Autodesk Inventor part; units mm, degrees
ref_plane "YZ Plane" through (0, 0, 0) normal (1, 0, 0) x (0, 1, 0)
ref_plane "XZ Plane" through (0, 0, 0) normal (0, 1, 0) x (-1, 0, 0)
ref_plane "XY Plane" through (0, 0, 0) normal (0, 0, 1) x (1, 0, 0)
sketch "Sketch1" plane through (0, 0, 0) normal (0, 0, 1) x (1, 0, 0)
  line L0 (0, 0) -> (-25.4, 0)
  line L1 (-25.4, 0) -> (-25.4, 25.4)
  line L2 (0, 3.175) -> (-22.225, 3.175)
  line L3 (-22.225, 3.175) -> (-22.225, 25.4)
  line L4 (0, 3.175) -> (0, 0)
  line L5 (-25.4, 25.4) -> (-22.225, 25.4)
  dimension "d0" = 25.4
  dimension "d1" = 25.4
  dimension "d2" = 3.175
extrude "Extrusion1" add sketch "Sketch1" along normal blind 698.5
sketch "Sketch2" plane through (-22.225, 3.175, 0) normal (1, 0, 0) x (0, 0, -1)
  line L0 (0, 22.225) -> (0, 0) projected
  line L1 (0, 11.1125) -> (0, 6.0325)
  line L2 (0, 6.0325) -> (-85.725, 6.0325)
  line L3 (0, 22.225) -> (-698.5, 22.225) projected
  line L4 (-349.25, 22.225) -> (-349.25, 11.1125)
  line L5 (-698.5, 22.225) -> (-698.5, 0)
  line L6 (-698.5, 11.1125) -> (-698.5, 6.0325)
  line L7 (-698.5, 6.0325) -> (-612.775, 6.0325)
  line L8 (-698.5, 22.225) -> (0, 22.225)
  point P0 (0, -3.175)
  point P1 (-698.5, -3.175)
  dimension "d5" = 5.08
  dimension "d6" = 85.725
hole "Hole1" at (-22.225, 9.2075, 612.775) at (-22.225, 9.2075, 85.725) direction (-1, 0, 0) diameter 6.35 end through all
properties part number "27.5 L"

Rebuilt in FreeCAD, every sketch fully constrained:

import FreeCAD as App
import Part
import Sketcher

V = App.Vector
Q = App.Units.Quantity


def add_polygon(sketch, points):
    """Adds a closed chain of lines whose ends are joined by coincident constraints."""
    first, n = sketch.GeometryCount, len(points)
    for a, b in zip(points, points[1:] + points[:1]):
        sketch.addGeometry(Part.LineSegment(App.Vector(*a, 0), App.Vector(*b, 0)), False)
    for i in range(n):
        sketch.addConstraint(Sketcher.Constraint("Coincident", first + i, 2, first + (i + 1) % n, 1))

doc = App.newDocument("Part")
body = doc.addObject("PartDesign::Body", "Body")

# Sketch on XY plane
sketch1 = doc.addObject("Sketcher::SketchObject", "Sketch")
body.addObject(sketch1)
sketch1.AttachmentSupport = (doc.XY_Plane, [""])
sketch1.MapMode = "FlatFace"
add_polygon(sketch1, [(-25.4, 0), (0, 0), (0, 3.2), (-22.2, 3.2), (-22.2, 25.4), (-25.4, 25.4)])  # lines 0-5
sketch1.addConstraint([
    Sketcher.Constraint("Horizontal", 0),
    Sketcher.Constraint("Vertical", 1),
    Sketcher.Constraint("Horizontal", 2),
    Sketcher.Constraint("Vertical", 3),
    Sketcher.Constraint("Horizontal", 4),
    Sketcher.Constraint("Vertical", 5),
    Sketcher.Constraint("Coincident", 0, 2, -1, 1),
    Sketcher.Constraint("Equal", 4, 1),
    Sketcher.Constraint("Equal", 2, 3),
    Sketcher.Constraint("DistanceX", 0, 1, 0, 2, Q("1 in")),
    Sketcher.Constraint("DistanceX", 4, 2, 4, 1, Q("0.125 in")),
])
pad1 = doc.addObject("PartDesign::Pad", "Pad")
body.addObject(pad1)
pad1.Profile = sketch1
pad1.Length = Q("27.5 in")

# Sketch on YZ plane
sketch2 = doc.addObject("Sketcher::SketchObject", "Sketch001")
body.addObject(sketch2)
sketch2.AttachmentSupport = (doc.YZ_Plane, [""])
sketch2.MapMode = "FlatFace"
sketch2.AttachmentOffset = App.Placement(V(0, 0, -0.875 * 25.4), App.Rotation())
sketch2.addGeometry([
    Part.Circle(V(9.2, 612.8, 0), V(0, 0, 1), 3.2),
    Part.Circle(V(9.2, 85.7, 0), V(0, 0, 1), 3.2),
], False)
sketch2.addConstraint([
    Sketcher.Constraint("Equal", 0, 1),
    Sketcher.Constraint("Vertical", 0, 3, 1, 3),
    Sketcher.Constraint("Diameter", 0, Q("0.25 in")),
    Sketcher.Constraint("DistanceY", 1, 3, 0, 3, Q("20.75 in")),
    Sketcher.Constraint("DistanceY", -1, 1, 0, 3, Q("24.125 in")),
    Sketcher.Constraint("DistanceX", -1, 1, 0, 3, Q("0.3625 in")),
])
doc.recompute()
hole = doc.addObject("PartDesign::Hole", "Hole")
body.addObject(hole)
hole.Profile = sketch2
hole.ThreadType = "None"
hole.Diameter = Q("0.25 in")
hole.DepthType = "ThroughAll"

doc.recompute()
